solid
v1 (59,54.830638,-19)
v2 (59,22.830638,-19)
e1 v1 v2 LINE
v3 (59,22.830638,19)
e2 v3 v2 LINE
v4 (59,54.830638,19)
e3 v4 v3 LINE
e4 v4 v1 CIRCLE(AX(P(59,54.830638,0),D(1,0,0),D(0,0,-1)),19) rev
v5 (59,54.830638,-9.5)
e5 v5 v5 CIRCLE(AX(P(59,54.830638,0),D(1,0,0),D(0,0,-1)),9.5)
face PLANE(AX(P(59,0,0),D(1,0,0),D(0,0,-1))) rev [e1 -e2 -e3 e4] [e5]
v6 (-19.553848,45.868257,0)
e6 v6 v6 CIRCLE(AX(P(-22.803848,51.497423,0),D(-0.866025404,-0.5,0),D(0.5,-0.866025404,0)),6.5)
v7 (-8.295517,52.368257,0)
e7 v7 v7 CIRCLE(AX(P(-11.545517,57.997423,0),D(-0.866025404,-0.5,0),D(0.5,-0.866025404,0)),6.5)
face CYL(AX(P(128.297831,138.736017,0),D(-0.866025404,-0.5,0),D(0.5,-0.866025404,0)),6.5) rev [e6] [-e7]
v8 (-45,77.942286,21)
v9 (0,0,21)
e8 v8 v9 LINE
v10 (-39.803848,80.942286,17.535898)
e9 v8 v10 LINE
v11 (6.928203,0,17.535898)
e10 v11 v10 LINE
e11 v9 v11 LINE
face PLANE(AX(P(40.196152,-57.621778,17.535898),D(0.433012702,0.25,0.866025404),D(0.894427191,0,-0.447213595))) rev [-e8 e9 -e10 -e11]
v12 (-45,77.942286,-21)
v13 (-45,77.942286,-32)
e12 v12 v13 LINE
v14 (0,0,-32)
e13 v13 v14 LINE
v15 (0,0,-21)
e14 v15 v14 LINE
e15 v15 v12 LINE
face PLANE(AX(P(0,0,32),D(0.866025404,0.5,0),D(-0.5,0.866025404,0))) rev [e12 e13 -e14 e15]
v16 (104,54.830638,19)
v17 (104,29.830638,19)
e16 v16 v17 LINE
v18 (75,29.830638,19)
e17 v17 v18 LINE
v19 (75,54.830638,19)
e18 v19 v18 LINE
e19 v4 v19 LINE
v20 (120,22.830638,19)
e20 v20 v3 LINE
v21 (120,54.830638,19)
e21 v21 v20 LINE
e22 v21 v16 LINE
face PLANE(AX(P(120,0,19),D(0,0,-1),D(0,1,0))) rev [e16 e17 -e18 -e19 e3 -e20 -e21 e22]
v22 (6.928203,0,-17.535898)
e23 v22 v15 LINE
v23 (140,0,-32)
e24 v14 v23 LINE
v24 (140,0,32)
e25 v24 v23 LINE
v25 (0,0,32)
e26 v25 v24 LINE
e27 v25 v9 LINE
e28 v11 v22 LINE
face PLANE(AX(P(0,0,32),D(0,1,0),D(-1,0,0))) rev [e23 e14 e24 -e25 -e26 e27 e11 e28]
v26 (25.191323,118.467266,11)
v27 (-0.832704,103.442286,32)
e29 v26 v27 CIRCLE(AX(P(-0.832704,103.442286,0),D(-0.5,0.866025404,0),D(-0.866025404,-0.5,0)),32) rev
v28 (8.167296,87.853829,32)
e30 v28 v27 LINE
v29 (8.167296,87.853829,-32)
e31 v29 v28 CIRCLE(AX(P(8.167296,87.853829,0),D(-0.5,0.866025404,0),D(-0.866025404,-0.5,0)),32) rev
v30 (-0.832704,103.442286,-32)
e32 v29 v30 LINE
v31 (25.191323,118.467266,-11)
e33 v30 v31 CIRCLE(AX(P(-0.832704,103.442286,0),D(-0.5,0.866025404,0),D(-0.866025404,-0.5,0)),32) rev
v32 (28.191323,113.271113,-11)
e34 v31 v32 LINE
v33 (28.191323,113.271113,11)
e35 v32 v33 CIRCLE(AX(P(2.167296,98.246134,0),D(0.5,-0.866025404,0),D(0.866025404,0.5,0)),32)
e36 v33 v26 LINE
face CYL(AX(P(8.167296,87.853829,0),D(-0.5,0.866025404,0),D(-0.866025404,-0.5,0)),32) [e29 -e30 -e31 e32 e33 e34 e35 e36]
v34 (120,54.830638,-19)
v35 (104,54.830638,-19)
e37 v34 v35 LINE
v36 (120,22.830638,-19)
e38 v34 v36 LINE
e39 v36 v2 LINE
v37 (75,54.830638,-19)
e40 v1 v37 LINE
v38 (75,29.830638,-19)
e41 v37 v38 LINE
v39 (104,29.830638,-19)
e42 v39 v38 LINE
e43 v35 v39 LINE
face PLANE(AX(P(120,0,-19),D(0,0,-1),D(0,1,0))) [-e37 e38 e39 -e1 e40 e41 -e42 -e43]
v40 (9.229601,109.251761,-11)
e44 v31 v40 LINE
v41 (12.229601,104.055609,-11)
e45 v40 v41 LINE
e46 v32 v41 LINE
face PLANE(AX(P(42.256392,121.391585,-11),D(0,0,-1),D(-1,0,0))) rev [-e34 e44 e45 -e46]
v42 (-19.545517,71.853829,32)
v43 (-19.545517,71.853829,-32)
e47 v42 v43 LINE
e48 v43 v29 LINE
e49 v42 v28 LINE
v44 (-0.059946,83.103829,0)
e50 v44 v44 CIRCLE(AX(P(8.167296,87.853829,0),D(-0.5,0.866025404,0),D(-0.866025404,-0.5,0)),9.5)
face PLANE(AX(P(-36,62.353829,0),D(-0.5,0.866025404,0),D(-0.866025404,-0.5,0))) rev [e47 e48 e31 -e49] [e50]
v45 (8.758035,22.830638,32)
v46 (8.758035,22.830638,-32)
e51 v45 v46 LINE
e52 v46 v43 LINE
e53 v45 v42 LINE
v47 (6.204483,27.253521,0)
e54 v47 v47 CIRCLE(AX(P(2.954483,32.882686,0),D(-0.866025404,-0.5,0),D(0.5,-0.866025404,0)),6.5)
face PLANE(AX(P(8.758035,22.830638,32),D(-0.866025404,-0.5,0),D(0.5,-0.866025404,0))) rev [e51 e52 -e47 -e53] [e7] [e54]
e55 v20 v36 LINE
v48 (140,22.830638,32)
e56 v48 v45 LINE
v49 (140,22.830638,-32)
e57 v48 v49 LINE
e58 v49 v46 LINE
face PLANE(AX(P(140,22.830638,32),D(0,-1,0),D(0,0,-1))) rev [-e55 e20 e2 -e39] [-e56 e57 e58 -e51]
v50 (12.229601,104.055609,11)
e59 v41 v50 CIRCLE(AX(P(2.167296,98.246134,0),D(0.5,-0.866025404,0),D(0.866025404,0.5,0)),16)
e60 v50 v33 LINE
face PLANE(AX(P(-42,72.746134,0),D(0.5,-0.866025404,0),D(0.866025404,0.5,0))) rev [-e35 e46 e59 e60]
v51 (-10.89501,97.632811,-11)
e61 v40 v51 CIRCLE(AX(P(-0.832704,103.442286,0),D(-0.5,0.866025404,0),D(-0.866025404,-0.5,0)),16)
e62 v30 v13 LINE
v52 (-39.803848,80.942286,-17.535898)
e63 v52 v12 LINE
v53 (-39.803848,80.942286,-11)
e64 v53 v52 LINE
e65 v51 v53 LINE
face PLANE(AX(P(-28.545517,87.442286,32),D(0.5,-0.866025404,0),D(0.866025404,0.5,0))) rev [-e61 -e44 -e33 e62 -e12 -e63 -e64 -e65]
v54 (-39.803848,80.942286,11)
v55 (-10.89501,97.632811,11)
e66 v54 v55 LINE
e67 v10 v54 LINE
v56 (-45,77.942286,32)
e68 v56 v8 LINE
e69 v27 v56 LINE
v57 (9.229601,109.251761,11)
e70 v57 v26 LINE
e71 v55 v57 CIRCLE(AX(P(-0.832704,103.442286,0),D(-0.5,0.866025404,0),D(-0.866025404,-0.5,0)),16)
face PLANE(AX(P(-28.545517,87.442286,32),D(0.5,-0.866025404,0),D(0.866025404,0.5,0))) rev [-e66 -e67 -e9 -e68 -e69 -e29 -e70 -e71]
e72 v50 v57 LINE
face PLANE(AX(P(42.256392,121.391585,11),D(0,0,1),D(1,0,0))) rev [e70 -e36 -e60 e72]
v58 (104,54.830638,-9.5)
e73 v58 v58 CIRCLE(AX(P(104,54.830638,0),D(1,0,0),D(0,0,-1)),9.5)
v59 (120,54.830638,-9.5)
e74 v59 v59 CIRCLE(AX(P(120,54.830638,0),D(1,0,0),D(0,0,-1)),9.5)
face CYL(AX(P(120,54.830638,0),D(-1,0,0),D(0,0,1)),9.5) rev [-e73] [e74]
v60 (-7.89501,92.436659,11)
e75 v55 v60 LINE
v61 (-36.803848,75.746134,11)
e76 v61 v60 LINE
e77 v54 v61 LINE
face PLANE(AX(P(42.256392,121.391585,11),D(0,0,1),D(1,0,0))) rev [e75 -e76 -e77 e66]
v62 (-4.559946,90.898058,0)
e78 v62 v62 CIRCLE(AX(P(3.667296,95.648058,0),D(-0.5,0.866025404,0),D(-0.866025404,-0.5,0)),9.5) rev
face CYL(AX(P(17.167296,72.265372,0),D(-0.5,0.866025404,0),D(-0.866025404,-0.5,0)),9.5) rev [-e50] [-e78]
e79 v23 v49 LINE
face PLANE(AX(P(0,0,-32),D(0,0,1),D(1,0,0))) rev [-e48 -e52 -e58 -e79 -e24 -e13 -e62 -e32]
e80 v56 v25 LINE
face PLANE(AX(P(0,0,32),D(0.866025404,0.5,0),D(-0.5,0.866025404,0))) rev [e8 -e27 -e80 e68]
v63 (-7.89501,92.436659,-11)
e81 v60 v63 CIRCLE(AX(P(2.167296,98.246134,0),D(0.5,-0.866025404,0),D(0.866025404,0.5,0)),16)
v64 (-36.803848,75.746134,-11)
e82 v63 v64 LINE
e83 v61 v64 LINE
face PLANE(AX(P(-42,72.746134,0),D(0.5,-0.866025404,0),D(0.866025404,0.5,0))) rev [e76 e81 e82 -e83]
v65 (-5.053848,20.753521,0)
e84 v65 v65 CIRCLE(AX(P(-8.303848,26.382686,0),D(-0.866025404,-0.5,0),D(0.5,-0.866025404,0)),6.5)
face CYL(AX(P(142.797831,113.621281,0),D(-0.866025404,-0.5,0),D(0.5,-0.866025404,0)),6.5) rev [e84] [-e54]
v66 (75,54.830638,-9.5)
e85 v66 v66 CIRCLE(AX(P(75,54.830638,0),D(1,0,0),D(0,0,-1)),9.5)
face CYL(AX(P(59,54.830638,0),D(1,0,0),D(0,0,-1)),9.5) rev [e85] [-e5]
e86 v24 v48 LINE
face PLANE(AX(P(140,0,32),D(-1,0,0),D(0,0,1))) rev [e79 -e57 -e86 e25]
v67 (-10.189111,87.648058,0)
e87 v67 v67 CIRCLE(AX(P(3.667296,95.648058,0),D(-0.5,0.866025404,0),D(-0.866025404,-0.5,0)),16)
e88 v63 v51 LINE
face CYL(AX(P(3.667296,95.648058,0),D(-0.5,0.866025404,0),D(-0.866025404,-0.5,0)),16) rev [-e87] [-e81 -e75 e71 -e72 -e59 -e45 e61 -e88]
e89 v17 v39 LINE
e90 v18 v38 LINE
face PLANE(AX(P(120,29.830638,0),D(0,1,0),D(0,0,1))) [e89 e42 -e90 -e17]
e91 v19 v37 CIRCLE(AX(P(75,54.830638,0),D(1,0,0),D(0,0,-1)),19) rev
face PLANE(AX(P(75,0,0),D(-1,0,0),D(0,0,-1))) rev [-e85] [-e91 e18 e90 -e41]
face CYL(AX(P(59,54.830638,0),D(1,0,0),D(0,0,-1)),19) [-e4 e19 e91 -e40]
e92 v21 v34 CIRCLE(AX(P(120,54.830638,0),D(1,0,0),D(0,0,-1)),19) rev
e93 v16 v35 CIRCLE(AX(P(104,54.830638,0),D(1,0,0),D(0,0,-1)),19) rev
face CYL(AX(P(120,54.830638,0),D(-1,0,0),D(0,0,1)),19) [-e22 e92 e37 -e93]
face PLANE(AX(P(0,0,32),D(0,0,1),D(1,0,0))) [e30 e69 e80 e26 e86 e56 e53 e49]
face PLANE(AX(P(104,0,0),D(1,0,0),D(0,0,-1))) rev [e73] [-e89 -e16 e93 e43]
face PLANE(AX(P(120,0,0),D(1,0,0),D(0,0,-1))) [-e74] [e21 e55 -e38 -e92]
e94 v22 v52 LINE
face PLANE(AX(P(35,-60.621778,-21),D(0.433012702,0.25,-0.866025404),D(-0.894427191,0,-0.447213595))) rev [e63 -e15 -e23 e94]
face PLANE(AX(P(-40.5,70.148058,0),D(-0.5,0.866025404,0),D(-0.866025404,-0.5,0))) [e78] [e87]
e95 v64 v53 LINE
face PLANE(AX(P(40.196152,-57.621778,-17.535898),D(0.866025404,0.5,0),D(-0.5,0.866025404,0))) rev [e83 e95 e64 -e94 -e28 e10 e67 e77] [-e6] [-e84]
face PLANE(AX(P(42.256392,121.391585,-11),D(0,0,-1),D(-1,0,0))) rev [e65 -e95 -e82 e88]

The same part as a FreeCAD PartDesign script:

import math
import FreeCAD as App
import Part
import Sketcher

V = App.Vector
Q = App.Units.Quantity

doc = App.newDocument("Part")
body = doc.addObject("PartDesign::Body", "Body")

# Sketch on XY plane
sketch1 = doc.addObject("Sketcher::SketchObject", "Sketch")
body.addObject(sketch1)
sketch1.AttachmentSupport = (doc.XY_Plane, [""])
sketch1.MapMode = "FlatFace"
sketch1.addGeometry(Part.LineSegment(V(-45, 78, 0), V(0, 0, 0)), False)
sketch1.addGeometry(Part.LineSegment(V(0, 0, 0), V(140, 0, 0)), False)
sketch1.addGeometry(Part.LineSegment(V(140, 0, 0), V(140, 23, 0)), False)
sketch1.addGeometry(Part.LineSegment(V(140, 23, 0), V(9, 23, 0)), False)
sketch1.addGeometry(Part.LineSegment(V(9, 23, 0), V(-29, 87, 0)), False)
sketch1.addGeometry(Part.LineSegment(V(-29, 87, 0), V(-45, 78, 0)), False)
sketch1.addConstraint(Sketcher.Constraint("Coincident", 0, 2, 1, 1))
sketch1.addConstraint(Sketcher.Constraint("Coincident", 1, 2, 2, 1))
sketch1.addConstraint(Sketcher.Constraint("Coincident", 2, 2, 3, 1))
sketch1.addConstraint(Sketcher.Constraint("Coincident", 3, 2, 4, 1))
sketch1.addConstraint(Sketcher.Constraint("Coincident", 4, 2, 5, 1))
sketch1.addConstraint(Sketcher.Constraint("Coincident", 5, 2, 0, 1))
sketch1.addConstraint(Sketcher.Constraint("Horizontal", 1))
sketch1.addConstraint(Sketcher.Constraint("Vertical", 2))
sketch1.addConstraint(Sketcher.Constraint("Horizontal", 3))
sketch1.addConstraint(Sketcher.Constraint("Coincident", 0, 2, -1, 1))
sketch1.addConstraint(Sketcher.Constraint("Parallel", 0, 4))
sketch1.addConstraint(Sketcher.Constraint("Perpendicular", 4, 5))
sketch1.addConstraint(Sketcher.Constraint("DistanceX", 1, 1, 1, 2, 140.0))
sketch1.addConstraint(Sketcher.Constraint("Angle", 0, Q("-60 deg")))
sketch1.addConstraint(Sketcher.Constraint("Distance", 0, 90.0))
sketch1.addConstraint(Sketcher.Constraint("Distance", 5, 19.0))
sketch1.addConstraint(Sketcher.Constraint("DistanceX", 3, 2, 3, 1, 131.241965))
pad1 = doc.addObject("PartDesign::Pad", "Pad")
body.addObject(pad1)
pad1.Profile = sketch1
pad1.Length = 64
pad1.Midplane = True

# Sketch on an angled plane
sketch2 = doc.addObject("Sketcher::SketchObject", "Sketch001")
body.addObject(sketch2)
sketch2.Placement = App.Placement(V(-45, 77.942286, 0), App.Rotation(V(0.866025404, 0.5, 0), V(0, 0, -1), V(-0.5, 0.866025404, 0), "ZXY"))
sketch2.addGeometry(Part.LineSegment(V(19, 32, 0), V(19, -32, 0)), False)
sketch2.addGeometry(Part.LineSegment(V(19, -32, 0), V(51, -32, 0)), False)
sketch2.addGeometry(Part.ArcOfCircle(Part.Circle(V(51, 0, 0), V(0, 0, 1), 32), math.radians(-90), math.radians(90)), False)
sketch2.addGeometry(Part.LineSegment(V(51, 32, 0), V(19, 32, 0)), False)
sketch2.addConstraint(Sketcher.Constraint("Coincident", 0, 2, 1, 1))
sketch2.addConstraint(Sketcher.Constraint("Tangent", 1, 2, 2, 1))
sketch2.addConstraint(Sketcher.Constraint("Tangent", 2, 2, 3, 1))
sketch2.addConstraint(Sketcher.Constraint("Coincident", 3, 2, 0, 1))
sketch2.addConstraint(Sketcher.Constraint("Vertical", 0))
sketch2.addConstraint(Sketcher.Constraint("Horizontal", 1))
sketch2.addConstraint(Sketcher.Constraint("Horizontal", 3))
sketch2.addConstraint(Sketcher.Constraint("PointOnObject", 2, 3, -1))
sketch2.addConstraint(Sketcher.Constraint("Radius", 2, 32.0))
sketch2.addConstraint(Sketcher.Constraint("DistanceX", 1, 1, 1, 2, 32.0))
sketch2.addConstraint(Sketcher.Constraint("DistanceX", -1, 1, 2, 3, 51.0))
pad2 = doc.addObject("PartDesign::Pad", "Pad001")
body.addObject(pad2)
pad2.Profile = sketch2
pad2.Length = 18
pad2.Reversed = True

# Sketch on an angled plane
sketch3 = doc.addObject("Sketcher::SketchObject", "Sketch002")
body.addObject(sketch3)
sketch3.Placement = App.Placement(V(-45, 77.942286, 0), App.Rotation(V(0.866025404, 0.5, 0), V(0, 0, -1), V(-0.5, 0.866025404, 0), "ZXY"))
sketch3.addGeometry(Part.LineSegment(V(6, 18, 0), V(0, 21, 0)), False)
sketch3.addGeometry(Part.LineSegment(V(0, 21, 0), V(0, -21, 0)), False)
sketch3.addGeometry(Part.LineSegment(V(0, -21, 0), V(6, -18, 0)), False)
sketch3.addGeometry(Part.LineSegment(V(6, -18, 0), V(6, 18, 0)), False)
sketch3.addConstraint(Sketcher.Constraint("Coincident", 0, 2, 1, 1))
sketch3.addConstraint(Sketcher.Constraint("Coincident", 1, 2, 2, 1))
sketch3.addConstraint(Sketcher.Constraint("Coincident", 2, 2, 3, 1))
sketch3.addConstraint(Sketcher.Constraint("Coincident", 3, 2, 0, 1))
sketch3.addConstraint(Sketcher.Constraint("Vertical", 1))
sketch3.addConstraint(Sketcher.Constraint("Vertical", 3))
sketch3.addConstraint(Sketcher.Constraint("Symmetric", 0, 2, 1, 2, -1, 1))
sketch3.addConstraint(Sketcher.Constraint("Equal", 0, 2))
sketch3.addConstraint(Sketcher.Constraint("DistanceY", 1, 2, 1, 1, 42.0))
sketch3.addConstraint(Sketcher.Constraint("Angle", 0, Q("150 deg")))
sketch3.addConstraint(Sketcher.Constraint("DistanceX", -1, 1, 2, 2, 6.0))
pocket1 = doc.addObject("PartDesign::Pocket", "Pocket")
body.addObject(pocket1)
pocket1.Profile = sketch3
pocket1.Type = "ThroughAll"

# Sketch on an angled plane
sketch4 = doc.addObject("Sketcher::SketchObject", "Sketch003")
body.addObject(sketch4)
sketch4.Placement = App.Placement(V(-45, 77.942286, 0), App.Rotation(V(0.866025404, 0.5, 0), V(0, 0, -1), V(-0.5, 0.866025404, 0), "ZXY"))
sketch4.addGeometry(Part.LineSegment(V(-13, 11, 0), V(-13, -11, 0)), False)
sketch4.addGeometry(Part.LineSegment(V(-13, -11, 0), V(97, -11, 0)), False)
sketch4.addGeometry(Part.LineSegment(V(97, -11, 0), V(97, 11, 0)), False)
sketch4.addGeometry(Part.LineSegment(V(97, 11, 0), V(-13, 11, 0)), False)
sketch4.addConstraint(Sketcher.Constraint("Coincident", 0, 2, 1, 1))
sketch4.addConstraint(Sketcher.Constraint("Coincident", 1, 2, 2, 1))
sketch4.addConstraint(Sketcher.Constraint("Coincident", 2, 2, 3, 1))
sketch4.addConstraint(Sketcher.Constraint("Coincident", 3, 2, 0, 1))
sketch4.addConstraint(Sketcher.Constraint("Vertical", 0))
sketch4.addConstraint(Sketcher.Constraint("Horizontal", 1))
sketch4.addConstraint(Sketcher.Constraint("Vertical", 2))
sketch4.addConstraint(Sketcher.Constraint("Horizontal", 3))
sketch4.addConstraint(Sketcher.Constraint("DistanceY", 0, 2, 0, 1, 22.0))
sketch4.addConstraint(Sketcher.Constraint("DistanceY", 0, 2, -1, 1, 11.0))
sketch4.addConstraint(Sketcher.Constraint("DistanceX", 1, 1, 1, 2, 110.76355))
sketch4.addConstraint(Sketcher.Constraint("DistanceX", -1, 1, 1, 2, 97.290902))
pocket2 = doc.addObject("PartDesign::Pocket", "Pocket001")
body.addObject(pocket2)
pocket2.Profile = sketch4
pocket2.Length = 6

# Sketch on an angled plane
sketch5 = doc.addObject("Sketcher::SketchObject", "Sketch004")
body.addObject(sketch5)
sketch5.Placement = App.Placement(V(-45, 77.942286, 0), App.Rotation(V(0.866025404, 0.5, 0), V(0, 0, -1), V(-0.5, 0.866025404, 0), "ZXY"))
sketch5.addGeometry(Part.Circle(V(51, 0, 0), V(0, 0, 1), 10), False)
sketch5.addConstraint(Sketcher.Constraint("PointOnObject", 0, 3, -1))
sketch5.addConstraint(Sketcher.Constraint("Diameter", 0, 19.0))
sketch5.addConstraint(Sketcher.Constraint("DistanceX", -1, 1, 0, 3, 51.0))
pocket3 = doc.addObject("PartDesign::Pocket", "Pocket002")
body.addObject(pocket3)
pocket3.Profile = sketch5
pocket3.Length = 36

# Sketch on an angled plane
sketch6 = doc.addObject("Sketcher::SketchObject", "Sketch005")
body.addObject(sketch6)
sketch6.Placement = App.Placement(V(-45, 77.942286, 0), App.Rotation(V(0.866025404, 0.5, 0), V(0, 0, -1), V(-0.5, 0.866025404, 0), "ZXY"))
sketch6.addGeometry(Part.ArcOfCircle(Part.Circle(V(51, 0, 0), V(0, 0, 1), 16), math.radians(0), math.radians(43)), False)
sketch6.addGeometry(Part.ArcOfCircle(Part.Circle(V(51, 0, 0), V(0, 0, 1), 16), math.radians(43), math.radians(137)), False)
sketch6.addGeometry(Part.ArcOfCircle(Part.Circle(V(51, 0, 0), V(0, 0, 1), 16), math.radians(137), math.radians(180)), False)
sketch6.addGeometry(Part.ArcOfCircle(Part.Circle(V(51, 0, 0), V(0, 0, 1), 16), math.radians(180), math.radians(360)), False)
sketch6.addConstraint(Sketcher.Constraint("Tangent", 0, 2, 1, 1))
sketch6.addConstraint(Sketcher.Constraint("Tangent", 1, 2, 2, 1))
sketch6.addConstraint(Sketcher.Constraint("Tangent", 2, 2, 3, 1))
sketch6.addConstraint(Sketcher.Constraint("Tangent", 3, 2, 0, 1))
sketch6.addConstraint(Sketcher.Constraint("Equal", 0, 1))
sketch6.addConstraint(Sketcher.Constraint("PointOnObject", 0, 3, -1))
sketch6.addConstraint(Sketcher.Constraint("PointOnObject", 2, 2, -1))
sketch6.addConstraint(Sketcher.Constraint("PointOnObject", 3, 2, -1))
sketch6.addConstraint(Sketcher.Constraint("Horizontal", 0, 2, 1, 2))
sketch6.addConstraint(Sketcher.Constraint("Radius", 0, 16.0))
sketch6.addConstraint(Sketcher.Constraint("DistanceX", -1, 1, 0, 3, 51.0))
sketch6.addConstraint(Sketcher.Constraint("DistanceY", -1, 1, 0, 2, 11.0))
pocket4 = doc.addObject("PartDesign::Pocket", "Pocket003")
body.addObject(pocket4)
pocket4.Profile = sketch6
pocket4.Length = 9

# Sketch on an angled plane
sketch7 = doc.addObject("Sketcher::SketchObject", "Sketch006")
body.addObject(sketch7)
sketch7.Placement = App.Placement(V(5.196152, 3, 0), App.Rotation(V(0, 0, 1), V(-0.5, 0.866025404, 0), V(-0.866025404, -0.5, 0), "ZXY"))
sketch7.addGeometry(Part.Circle(V(0, 56, 0), V(0, 0, 1), 6), False)
sketch7.addGeometry(Part.Circle(V(0, 27, 0), V(0, 0, 1), 6), False)
sketch7.addConstraint(Sketcher.Constraint("Equal", 0, 1))
sketch7.addConstraint(Sketcher.Constraint("PointOnObject", 0, 3, -2))
sketch7.addConstraint(Sketcher.Constraint("PointOnObject", 1, 3, -2))
sketch7.addConstraint(Sketcher.Constraint("Diameter", 0, 13.0))
sketch7.addConstraint(Sketcher.Constraint("DistanceY", -1, 1, 0, 3, 56.0))
sketch7.addConstraint(Sketcher.Constraint("DistanceY", -1, 1, 1, 3, 27.0))
pocket5 = doc.addObject("PartDesign::Pocket", "Pocket004")
body.addObject(pocket5)
pocket5.Profile = sketch7
pocket5.Type = "ThroughAll"

# Sketch on YZ plane
sketch8 = doc.addObject("Sketcher::SketchObject", "Sketch007")
body.addObject(sketch8)
sketch8.AttachmentSupport = (doc.YZ_Plane, [""])
sketch8.MapMode = "FlatFace"
sketch8.AttachmentOffset = App.Placement(V(0, 0, 89.5), App.Rotation())
sketch8.addGeometry(Part.LineSegment(V(30, 19, 0), V(23, 19, 0)), False)
sketch8.addGeometry(Part.LineSegment(V(23, 19, 0), V(23, -19, 0)), False)
sketch8.addGeometry(Part.LineSegment(V(23, -19, 0), V(30, -19, 0)), False)
sketch8.addGeometry(Part.LineSegment(V(30, -19, 0), V(30, 19, 0)), False)
sketch8.addConstraint(Sketcher.Constraint("Coincident", 0, 2, 1, 1))
sketch8.addConstraint(Sketcher.Constraint("Coincident", 1, 2, 2, 1))
sketch8.addConstraint(Sketcher.Constraint("Coincident", 2, 2, 3, 1))
sketch8.addConstraint(Sketcher.Constraint("Coincident", 3, 2, 0, 1))
sketch8.addConstraint(Sketcher.Constraint("Horizontal", 0))
sketch8.addConstraint(Sketcher.Constraint("Vertical", 1))
sketch8.addConstraint(Sketcher.Constraint("Horizontal", 2))
sketch8.addConstraint(Sketcher.Constraint("Vertical", 3))
sketch8.addConstraint(Sketcher.Constraint("DistanceX", 0, 2, 0, 1, 7.0))
sketch8.addConstraint(Sketcher.Constraint("DistanceY", 1, 2, 1, 1, 38.0))
sketch8.addConstraint(Sketcher.Constraint("DistanceY", -1, 1, 0, 2, 19.0))
sketch8.addConstraint(Sketcher.Constraint("DistanceX", -1, 1, 0, 2, 22.830638))
pad3 = doc.addObject("PartDesign::Pad", "Pad002")
body.addObject(pad3)
pad3.Profile = sketch8
pad3.Length = 61
pad3.Midplane = True

# Sketch on YZ plane
sketch9 = doc.addObject("Sketcher::SketchObject", "Sketch008")
body.addObject(sketch9)
sketch9.AttachmentSupport = (doc.YZ_Plane, [""])
sketch9.MapMode = "FlatFace"
sketch9.AttachmentOffset = App.Placement(V(0, 0, 104), App.Rotation())
sketch9.addGeometry(Part.LineSegment(V(55, 19, 0), V(30, 19, 0)), False)
sketch9.addGeometry(Part.LineSegment(V(30, 19, 0), V(30, -19, 0)), False)
sketch9.addGeometry(Part.LineSegment(V(30, -19, 0), V(55, -19, 0)), False)
sketch9.addGeometry(Part.ArcOfCircle(Part.Circle(V(55, 0, 0), V(0, 0, 1), 19), math.radians(-90), math.radians(90)), False)
sketch9.addGeometry(Part.Circle(V(55, 0, 0), V(0, 0, 1), 10), False)
sketch9.addConstraint(Sketcher.Constraint("Coincident", 0, 2, 1, 1))
sketch9.addConstraint(Sketcher.Constraint("Coincident", 1, 2, 2, 1))
sketch9.addConstraint(Sketcher.Constraint("Tangent", 2, 2, 3, 1))
sketch9.addConstraint(Sketcher.Constraint("Tangent", 3, 2, 0, 1))
sketch9.addConstraint(Sketcher.Constraint("Horizontal", 0))
sketch9.addConstraint(Sketcher.Constraint("Vertical", 1))
sketch9.addConstraint(Sketcher.Constraint("Horizontal", 2))
sketch9.addConstraint(Sketcher.Constraint("Coincident", 4, 3, 3, 3))
sketch9.addConstraint(Sketcher.Constraint("PointOnObject", 3, 3, -1))
sketch9.addConstraint(Sketcher.Constraint("Diameter", 4, 19.0))
sketch9.addConstraint(Sketcher.Constraint("Radius", 3, 19.0))
sketch9.addConstraint(Sketcher.Constraint("DistanceX", 0, 2, 0, 1, 25.0))
sketch9.addConstraint(Sketcher.Constraint("DistanceX", -1, 1, 3, 3, 54.830638))
pad4 = doc.addObject("PartDesign::Pad", "Pad003")
body.addObject(pad4)
pad4.Profile = sketch9
pad4.Length = 16
doc.recompute()

datumplane = doc.addObject("PartDesign::Plane", "DatumPlane")
body.addObject(datumplane)
datumplane.AttachmentSupport = (doc.YZ_Plane, [""])
datumplane.MapMode = "FlatFace"
datumplane.AttachmentOffset = App.Placement(V(0, 0, 89.5), App.Rotation())
mirrored = doc.addObject("PartDesign::Mirrored", "Mirrored")
body.addObject(mirrored)
mirrored.Originals = [pad4]
mirrored.MirrorPlane = (datumplane, [""])
body.Tip = mirrored

doc.recompute()
